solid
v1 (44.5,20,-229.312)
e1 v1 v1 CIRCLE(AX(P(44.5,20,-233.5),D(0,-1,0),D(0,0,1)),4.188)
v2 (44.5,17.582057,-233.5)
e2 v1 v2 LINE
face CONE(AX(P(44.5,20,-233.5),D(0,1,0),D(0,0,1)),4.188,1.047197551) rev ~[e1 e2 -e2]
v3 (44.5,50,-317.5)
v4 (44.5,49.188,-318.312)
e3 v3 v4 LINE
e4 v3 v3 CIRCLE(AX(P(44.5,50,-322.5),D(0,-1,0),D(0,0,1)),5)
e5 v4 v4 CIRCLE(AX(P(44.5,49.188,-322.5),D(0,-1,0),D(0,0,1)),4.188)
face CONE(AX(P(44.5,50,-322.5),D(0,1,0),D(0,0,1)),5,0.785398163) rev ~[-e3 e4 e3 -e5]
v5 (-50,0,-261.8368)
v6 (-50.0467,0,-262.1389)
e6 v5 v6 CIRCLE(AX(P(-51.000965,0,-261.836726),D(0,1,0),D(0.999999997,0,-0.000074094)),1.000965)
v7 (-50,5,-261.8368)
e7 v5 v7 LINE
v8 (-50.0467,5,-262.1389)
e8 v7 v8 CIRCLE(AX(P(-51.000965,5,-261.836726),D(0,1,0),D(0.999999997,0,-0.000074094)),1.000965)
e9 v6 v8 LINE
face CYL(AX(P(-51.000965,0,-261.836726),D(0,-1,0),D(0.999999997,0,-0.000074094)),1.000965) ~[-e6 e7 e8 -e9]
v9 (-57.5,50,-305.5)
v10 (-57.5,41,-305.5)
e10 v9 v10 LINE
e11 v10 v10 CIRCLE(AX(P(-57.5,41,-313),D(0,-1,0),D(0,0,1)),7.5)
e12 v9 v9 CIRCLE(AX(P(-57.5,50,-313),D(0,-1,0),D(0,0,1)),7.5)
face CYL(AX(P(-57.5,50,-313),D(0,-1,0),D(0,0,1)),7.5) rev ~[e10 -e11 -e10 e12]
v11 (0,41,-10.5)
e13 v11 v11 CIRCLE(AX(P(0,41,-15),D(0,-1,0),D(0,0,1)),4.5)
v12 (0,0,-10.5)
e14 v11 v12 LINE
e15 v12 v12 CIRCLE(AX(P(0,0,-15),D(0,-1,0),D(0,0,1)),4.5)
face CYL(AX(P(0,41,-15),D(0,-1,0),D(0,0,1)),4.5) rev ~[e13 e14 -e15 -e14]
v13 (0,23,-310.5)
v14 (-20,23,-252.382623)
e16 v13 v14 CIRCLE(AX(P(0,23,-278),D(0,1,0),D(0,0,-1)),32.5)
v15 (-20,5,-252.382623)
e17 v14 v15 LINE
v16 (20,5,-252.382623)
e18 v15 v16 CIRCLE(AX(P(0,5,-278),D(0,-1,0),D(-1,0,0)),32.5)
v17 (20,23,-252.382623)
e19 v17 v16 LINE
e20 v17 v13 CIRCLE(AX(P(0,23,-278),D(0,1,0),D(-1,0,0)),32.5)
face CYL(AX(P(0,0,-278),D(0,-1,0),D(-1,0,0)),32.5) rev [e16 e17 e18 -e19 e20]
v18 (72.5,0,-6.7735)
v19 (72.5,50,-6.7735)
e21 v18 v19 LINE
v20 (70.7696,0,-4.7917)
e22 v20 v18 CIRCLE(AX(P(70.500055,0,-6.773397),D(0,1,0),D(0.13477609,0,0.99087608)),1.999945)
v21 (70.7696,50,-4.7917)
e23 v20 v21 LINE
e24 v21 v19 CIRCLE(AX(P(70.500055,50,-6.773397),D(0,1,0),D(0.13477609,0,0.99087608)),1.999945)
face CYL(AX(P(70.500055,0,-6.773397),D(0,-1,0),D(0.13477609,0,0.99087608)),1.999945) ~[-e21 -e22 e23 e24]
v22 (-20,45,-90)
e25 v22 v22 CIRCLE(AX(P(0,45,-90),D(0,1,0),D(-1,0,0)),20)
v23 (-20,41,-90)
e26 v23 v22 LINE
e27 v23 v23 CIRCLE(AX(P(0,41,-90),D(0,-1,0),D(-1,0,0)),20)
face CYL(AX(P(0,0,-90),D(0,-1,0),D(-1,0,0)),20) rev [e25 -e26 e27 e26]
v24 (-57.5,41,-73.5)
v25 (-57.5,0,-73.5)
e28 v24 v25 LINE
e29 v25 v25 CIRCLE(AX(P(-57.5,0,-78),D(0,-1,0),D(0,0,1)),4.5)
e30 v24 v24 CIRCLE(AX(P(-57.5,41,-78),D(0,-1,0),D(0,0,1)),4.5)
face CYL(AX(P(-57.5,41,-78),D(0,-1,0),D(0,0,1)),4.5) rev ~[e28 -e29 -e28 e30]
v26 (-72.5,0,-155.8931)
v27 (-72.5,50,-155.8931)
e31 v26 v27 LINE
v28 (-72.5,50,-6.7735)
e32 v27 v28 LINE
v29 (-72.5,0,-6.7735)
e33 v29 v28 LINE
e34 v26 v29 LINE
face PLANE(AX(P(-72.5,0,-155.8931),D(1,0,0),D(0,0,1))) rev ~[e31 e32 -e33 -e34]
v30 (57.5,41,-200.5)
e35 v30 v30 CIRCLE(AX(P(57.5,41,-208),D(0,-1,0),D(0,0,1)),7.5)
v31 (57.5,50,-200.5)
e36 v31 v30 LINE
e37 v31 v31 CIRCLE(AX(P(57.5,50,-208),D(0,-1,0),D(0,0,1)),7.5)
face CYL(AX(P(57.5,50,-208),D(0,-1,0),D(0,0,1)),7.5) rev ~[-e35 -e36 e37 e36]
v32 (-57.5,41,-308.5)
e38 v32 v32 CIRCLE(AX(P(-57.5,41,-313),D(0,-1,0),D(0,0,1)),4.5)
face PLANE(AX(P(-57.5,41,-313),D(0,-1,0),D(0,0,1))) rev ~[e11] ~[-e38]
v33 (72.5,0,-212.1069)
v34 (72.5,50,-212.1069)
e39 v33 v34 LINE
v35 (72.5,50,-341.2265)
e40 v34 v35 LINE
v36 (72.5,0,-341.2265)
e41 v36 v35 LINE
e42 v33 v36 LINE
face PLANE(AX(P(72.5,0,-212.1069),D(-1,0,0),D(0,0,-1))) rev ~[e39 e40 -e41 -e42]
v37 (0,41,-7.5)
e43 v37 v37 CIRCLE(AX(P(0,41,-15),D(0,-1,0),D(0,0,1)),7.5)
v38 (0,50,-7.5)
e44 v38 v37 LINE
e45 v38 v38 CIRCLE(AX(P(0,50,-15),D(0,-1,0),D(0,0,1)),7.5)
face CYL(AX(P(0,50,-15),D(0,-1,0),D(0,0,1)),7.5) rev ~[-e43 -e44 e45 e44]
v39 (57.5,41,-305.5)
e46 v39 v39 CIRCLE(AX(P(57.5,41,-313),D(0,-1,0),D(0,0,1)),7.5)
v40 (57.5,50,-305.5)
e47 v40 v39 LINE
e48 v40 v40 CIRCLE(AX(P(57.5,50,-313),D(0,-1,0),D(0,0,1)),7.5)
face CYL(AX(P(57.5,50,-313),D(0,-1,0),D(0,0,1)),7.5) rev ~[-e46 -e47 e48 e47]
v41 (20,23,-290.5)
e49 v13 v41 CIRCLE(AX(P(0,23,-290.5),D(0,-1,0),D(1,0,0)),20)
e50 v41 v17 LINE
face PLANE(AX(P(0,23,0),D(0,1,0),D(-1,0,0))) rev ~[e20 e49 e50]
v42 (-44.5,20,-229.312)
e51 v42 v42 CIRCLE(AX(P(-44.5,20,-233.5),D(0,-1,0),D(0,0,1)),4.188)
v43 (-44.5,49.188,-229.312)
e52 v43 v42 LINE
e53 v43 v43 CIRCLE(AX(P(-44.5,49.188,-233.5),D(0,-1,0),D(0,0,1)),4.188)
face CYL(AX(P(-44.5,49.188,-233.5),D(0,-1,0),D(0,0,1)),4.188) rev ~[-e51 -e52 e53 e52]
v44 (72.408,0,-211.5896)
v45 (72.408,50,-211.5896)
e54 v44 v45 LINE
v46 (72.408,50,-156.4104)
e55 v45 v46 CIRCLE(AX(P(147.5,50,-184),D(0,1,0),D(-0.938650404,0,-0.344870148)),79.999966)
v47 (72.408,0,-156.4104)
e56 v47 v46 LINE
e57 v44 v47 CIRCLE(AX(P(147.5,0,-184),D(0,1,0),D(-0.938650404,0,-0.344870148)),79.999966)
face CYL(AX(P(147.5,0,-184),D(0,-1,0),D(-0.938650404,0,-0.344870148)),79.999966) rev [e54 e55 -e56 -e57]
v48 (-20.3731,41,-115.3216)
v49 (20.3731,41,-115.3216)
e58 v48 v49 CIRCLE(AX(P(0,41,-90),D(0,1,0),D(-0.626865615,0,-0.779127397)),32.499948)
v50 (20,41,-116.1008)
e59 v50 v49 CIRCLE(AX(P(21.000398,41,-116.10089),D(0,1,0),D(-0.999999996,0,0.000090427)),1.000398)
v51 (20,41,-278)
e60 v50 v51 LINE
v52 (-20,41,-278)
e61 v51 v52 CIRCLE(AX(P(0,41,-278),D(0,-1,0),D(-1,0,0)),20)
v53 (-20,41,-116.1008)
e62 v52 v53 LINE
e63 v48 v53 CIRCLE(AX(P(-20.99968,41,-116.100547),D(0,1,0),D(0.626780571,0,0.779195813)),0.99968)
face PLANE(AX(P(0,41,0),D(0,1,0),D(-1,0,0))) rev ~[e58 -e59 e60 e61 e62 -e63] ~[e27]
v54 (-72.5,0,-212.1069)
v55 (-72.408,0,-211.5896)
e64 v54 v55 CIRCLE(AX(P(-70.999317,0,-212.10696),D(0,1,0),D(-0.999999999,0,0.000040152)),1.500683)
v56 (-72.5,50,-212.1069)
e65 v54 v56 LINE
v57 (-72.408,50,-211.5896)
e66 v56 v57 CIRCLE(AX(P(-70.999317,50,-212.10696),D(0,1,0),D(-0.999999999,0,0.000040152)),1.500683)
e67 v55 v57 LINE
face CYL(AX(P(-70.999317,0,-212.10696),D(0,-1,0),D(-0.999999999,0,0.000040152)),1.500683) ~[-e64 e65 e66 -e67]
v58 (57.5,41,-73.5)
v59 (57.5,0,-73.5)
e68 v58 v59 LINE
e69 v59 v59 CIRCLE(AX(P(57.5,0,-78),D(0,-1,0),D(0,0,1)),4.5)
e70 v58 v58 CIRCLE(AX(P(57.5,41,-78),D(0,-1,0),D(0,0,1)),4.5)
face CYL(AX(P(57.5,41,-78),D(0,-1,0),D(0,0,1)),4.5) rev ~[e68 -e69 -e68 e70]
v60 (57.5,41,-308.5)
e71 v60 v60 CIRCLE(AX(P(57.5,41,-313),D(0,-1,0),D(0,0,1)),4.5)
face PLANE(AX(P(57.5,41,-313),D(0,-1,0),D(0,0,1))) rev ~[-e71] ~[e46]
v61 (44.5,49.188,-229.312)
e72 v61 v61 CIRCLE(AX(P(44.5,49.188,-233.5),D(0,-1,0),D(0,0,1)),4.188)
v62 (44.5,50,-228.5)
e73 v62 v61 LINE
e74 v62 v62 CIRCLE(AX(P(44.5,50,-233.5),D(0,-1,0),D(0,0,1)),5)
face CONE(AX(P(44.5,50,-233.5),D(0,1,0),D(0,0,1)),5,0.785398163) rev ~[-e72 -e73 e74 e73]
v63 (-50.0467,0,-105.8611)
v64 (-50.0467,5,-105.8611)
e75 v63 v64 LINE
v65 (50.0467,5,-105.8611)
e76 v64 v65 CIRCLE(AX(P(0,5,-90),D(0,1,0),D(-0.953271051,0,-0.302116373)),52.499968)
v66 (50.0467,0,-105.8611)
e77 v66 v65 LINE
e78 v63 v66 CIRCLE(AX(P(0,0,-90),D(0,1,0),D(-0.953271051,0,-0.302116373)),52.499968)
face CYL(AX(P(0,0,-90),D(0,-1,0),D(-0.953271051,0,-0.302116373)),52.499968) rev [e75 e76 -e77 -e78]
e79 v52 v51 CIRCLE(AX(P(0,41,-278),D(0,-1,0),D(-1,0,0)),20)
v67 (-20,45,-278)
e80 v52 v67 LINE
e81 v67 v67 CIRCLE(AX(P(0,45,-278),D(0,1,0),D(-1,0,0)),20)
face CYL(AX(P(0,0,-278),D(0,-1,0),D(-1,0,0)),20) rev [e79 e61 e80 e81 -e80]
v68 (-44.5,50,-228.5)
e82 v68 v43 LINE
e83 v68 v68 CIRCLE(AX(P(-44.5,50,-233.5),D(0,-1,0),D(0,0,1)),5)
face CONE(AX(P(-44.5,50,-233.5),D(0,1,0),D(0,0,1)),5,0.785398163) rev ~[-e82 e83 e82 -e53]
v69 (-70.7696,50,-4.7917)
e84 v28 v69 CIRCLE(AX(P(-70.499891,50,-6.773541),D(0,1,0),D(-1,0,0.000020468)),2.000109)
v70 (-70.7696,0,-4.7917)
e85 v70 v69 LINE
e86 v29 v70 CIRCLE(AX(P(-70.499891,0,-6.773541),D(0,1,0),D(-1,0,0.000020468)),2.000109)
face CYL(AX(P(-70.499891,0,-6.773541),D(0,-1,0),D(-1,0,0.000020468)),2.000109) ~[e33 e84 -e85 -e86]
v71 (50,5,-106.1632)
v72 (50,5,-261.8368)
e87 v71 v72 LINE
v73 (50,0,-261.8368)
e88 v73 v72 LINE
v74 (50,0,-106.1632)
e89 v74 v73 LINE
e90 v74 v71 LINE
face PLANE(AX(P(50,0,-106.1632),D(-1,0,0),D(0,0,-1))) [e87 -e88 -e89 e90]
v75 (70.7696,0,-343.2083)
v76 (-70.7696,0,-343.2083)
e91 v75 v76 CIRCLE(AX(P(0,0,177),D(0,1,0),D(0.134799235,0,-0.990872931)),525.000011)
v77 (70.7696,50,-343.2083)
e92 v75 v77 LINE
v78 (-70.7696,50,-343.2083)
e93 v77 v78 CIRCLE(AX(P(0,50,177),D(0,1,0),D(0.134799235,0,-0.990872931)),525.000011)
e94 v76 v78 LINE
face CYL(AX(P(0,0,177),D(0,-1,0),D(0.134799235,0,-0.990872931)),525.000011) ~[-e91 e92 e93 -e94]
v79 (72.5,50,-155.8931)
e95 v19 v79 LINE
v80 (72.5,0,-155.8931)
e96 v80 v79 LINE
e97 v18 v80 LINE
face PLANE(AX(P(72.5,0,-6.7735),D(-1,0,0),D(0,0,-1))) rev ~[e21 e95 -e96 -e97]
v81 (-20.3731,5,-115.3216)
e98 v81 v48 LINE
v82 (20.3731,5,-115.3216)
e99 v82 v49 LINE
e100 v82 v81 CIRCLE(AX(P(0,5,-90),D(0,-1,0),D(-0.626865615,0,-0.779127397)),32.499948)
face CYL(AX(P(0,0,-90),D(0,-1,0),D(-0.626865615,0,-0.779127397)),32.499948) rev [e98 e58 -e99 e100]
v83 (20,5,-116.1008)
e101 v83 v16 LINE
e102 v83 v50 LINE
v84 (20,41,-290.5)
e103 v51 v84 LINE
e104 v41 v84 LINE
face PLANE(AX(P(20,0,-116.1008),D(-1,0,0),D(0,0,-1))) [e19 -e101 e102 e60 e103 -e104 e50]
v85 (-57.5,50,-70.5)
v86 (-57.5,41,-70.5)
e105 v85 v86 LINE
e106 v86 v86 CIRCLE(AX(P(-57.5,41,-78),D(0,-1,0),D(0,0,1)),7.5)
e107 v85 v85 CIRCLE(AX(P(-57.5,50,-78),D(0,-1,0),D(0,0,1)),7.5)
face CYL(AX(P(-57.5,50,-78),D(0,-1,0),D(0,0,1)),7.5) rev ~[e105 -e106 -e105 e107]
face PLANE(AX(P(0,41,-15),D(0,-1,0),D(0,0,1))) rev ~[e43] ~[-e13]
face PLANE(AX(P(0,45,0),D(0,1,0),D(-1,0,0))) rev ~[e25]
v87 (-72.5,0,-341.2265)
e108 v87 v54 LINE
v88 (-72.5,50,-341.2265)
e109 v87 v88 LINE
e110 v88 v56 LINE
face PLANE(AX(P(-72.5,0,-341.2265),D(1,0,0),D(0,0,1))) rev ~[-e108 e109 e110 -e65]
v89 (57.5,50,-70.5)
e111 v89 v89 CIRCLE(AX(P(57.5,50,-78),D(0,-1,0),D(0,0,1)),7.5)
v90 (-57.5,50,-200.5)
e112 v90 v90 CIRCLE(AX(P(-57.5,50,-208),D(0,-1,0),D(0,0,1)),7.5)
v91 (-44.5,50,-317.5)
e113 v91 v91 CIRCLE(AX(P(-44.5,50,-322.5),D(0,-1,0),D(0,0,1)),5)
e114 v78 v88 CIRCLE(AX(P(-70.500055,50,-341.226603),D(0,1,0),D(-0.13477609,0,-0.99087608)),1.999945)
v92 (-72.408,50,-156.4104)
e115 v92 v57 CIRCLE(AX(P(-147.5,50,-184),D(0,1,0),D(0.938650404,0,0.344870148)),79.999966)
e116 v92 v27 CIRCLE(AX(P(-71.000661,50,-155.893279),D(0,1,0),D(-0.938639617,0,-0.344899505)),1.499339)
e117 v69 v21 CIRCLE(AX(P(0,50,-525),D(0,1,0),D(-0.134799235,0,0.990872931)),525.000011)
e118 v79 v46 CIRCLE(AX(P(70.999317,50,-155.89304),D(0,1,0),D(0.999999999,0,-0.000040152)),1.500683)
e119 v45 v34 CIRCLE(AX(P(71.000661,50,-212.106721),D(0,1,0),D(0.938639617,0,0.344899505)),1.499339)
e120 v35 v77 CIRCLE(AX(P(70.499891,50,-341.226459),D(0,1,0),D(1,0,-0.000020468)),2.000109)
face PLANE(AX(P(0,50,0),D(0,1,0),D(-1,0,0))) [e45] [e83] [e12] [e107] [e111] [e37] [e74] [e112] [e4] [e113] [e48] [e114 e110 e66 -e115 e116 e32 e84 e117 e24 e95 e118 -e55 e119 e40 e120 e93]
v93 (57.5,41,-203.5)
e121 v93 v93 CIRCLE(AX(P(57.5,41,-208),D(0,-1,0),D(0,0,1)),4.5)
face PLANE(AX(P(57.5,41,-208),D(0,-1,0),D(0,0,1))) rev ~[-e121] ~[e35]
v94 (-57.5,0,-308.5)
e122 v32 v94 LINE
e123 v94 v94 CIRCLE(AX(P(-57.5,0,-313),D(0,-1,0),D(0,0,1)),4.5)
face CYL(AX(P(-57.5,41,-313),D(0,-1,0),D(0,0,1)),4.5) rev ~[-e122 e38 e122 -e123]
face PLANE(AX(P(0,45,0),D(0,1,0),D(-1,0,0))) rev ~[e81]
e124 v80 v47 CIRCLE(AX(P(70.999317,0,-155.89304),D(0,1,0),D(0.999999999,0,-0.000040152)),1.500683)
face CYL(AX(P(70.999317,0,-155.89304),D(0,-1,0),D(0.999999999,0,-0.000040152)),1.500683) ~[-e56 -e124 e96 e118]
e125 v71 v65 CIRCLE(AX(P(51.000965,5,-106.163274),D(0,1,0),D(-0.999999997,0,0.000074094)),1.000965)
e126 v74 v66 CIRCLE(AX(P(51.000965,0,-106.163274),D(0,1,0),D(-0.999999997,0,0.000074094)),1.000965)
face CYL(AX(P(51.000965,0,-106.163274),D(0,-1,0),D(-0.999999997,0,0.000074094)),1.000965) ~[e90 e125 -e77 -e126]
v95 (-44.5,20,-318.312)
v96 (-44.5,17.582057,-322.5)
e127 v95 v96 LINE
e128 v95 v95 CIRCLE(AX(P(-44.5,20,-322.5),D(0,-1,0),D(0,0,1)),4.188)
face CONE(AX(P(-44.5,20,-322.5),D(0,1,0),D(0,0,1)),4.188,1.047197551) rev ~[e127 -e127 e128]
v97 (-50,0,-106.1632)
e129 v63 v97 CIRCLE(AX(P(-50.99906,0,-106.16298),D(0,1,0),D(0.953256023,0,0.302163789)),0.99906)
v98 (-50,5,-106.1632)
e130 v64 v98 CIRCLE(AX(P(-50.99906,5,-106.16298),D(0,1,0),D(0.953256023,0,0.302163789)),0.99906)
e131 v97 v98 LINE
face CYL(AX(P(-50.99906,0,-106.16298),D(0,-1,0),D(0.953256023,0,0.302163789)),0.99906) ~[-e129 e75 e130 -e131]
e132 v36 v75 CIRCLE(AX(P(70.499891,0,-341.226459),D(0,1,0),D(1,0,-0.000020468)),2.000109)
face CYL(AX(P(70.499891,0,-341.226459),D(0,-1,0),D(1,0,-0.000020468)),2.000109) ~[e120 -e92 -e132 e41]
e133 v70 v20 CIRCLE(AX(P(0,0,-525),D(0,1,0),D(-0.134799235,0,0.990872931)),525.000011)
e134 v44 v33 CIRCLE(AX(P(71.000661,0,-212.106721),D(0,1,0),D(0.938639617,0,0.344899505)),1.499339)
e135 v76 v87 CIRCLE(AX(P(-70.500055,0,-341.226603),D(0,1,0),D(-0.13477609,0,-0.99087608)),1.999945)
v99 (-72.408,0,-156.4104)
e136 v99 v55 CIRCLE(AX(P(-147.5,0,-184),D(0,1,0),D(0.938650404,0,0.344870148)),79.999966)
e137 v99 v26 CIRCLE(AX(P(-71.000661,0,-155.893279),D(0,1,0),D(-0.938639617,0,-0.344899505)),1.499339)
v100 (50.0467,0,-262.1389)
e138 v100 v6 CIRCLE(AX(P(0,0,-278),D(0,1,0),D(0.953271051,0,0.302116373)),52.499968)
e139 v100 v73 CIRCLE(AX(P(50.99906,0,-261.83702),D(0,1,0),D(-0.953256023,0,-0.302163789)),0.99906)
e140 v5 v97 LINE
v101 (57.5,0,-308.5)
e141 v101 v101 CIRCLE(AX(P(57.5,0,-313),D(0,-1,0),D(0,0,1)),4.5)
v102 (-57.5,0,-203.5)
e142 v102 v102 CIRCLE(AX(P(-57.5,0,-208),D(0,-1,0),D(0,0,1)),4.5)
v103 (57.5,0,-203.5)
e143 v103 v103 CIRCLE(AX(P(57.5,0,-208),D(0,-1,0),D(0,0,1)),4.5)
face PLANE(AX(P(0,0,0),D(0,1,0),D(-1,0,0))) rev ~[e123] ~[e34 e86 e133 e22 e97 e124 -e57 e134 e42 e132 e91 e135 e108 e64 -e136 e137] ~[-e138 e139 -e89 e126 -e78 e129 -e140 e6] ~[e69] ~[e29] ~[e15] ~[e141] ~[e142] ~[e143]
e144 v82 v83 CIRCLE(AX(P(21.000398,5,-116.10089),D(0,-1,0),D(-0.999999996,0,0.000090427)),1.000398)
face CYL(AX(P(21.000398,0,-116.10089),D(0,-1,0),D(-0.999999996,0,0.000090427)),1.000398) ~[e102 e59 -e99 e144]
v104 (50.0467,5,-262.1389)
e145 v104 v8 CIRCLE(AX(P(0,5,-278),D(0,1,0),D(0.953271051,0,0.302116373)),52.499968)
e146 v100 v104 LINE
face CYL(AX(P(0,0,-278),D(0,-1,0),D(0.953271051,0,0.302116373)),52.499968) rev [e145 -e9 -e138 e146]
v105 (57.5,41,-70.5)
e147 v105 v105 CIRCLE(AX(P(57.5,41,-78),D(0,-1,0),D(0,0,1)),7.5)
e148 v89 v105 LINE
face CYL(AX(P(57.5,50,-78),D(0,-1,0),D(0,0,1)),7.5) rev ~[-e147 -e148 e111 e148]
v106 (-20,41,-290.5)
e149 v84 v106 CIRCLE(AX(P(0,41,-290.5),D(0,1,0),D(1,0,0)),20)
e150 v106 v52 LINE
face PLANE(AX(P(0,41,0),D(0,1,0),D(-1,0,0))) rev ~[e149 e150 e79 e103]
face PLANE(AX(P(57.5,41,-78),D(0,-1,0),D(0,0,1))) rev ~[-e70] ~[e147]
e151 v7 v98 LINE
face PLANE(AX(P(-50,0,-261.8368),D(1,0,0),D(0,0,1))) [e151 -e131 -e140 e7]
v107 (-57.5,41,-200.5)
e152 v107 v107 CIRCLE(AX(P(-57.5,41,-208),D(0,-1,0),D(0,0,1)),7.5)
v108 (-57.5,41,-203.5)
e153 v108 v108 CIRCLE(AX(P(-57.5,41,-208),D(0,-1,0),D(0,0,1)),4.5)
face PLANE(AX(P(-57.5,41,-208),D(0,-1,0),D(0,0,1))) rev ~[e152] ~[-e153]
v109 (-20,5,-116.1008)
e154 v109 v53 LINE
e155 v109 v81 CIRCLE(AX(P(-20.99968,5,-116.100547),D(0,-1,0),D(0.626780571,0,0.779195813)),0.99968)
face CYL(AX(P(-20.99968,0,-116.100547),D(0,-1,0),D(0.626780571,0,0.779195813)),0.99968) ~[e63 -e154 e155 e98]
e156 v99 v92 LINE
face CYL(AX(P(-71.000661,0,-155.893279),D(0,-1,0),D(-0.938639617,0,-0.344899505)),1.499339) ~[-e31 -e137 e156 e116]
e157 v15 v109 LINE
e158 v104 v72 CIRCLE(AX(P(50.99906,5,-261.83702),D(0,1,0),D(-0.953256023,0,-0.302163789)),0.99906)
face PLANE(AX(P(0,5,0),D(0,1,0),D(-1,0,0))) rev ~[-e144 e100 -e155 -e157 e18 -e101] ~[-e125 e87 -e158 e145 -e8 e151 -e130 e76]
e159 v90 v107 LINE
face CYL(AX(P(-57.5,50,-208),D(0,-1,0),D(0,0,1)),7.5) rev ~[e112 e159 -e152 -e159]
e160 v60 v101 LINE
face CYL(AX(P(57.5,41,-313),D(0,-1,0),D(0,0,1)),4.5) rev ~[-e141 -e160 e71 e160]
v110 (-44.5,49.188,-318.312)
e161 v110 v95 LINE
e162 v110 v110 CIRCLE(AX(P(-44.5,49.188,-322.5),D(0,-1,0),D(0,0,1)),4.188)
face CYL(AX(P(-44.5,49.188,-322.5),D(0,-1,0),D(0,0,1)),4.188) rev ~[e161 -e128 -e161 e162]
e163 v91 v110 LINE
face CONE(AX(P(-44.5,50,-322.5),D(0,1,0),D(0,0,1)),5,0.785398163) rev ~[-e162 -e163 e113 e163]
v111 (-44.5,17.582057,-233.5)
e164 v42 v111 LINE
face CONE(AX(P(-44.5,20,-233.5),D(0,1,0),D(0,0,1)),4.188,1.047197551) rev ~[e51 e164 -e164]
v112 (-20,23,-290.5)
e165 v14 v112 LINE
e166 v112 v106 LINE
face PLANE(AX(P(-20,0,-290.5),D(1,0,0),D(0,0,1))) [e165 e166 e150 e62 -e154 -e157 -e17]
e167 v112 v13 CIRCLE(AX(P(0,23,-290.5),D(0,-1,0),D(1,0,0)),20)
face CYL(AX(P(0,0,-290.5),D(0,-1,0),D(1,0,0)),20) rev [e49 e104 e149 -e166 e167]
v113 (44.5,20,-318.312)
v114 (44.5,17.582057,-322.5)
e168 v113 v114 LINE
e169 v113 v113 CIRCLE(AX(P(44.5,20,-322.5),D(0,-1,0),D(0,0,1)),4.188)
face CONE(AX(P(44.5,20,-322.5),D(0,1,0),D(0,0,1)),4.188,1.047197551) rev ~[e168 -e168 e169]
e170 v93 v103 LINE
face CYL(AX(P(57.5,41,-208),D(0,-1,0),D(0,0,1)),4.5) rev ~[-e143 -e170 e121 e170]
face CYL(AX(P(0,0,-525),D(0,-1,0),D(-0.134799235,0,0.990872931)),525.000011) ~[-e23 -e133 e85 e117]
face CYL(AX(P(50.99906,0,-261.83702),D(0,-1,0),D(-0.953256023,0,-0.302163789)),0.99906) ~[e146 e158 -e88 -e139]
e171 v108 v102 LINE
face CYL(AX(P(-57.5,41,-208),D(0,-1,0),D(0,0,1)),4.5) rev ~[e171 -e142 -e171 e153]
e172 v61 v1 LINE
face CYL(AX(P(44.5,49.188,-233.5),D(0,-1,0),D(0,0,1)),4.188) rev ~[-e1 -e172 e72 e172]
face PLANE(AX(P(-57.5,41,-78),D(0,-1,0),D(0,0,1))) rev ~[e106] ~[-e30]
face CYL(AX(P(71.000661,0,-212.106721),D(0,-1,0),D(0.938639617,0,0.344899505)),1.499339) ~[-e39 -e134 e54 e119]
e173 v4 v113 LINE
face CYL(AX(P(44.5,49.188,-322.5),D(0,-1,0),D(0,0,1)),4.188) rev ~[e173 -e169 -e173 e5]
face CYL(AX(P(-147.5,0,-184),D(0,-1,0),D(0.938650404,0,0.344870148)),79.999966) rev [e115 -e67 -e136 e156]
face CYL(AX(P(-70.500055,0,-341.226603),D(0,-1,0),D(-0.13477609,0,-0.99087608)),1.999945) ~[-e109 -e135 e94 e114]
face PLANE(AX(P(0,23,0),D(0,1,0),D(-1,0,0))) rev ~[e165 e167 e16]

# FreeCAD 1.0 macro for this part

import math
import FreeCAD as App
import Part
import Sketcher

V = App.Vector
Q = App.Units.Quantity

doc = App.newDocument("Part")
body = doc.addObject("PartDesign::Body", "Body")

sketch1 = body.newObject("Sketcher::SketchObject", "Sketch")
sketch1.AttachmentSupport = (doc.getObject("XZ_Plane"), [""])
sketch1.MapMode = "FlatFace"
sketch1.addGeometry([
    Part.ArcOfCircle(Part.Circle(V(-71, -155.8931, 0), V(0, 0, 1), 1.500021), math.radians(180), math.radians(200.173361)),
    Part.LineSegment(V(-72.5, -155.8931, 0), V(-72.5, -6.7735, 0)),
    Part.ArcOfCircle(Part.Circle(V(-70.5, -6.7735, 0), V(0, 0, 1), 2), math.radians(97.746845), math.radians(180)),
    Part.ArcOfCircle(Part.Circle(V(0, -525, 0), V(0, 0, 1), 525.000011), math.radians(82.252989), math.radians(97.747011)),
    Part.ArcOfCircle(Part.Circle(V(70.5, -6.7735, 0), V(0, 0, 1), 2.000054), math.radians(0), math.radians(82.253155)),
    Part.LineSegment(V(72.5, -6.7735, 0), V(72.5, -155.8931, 0)),
    Part.ArcOfCircle(Part.Circle(V(71, -155.8931, 0), V(0, 0, 1), 1.5), math.radians(-20.173361), math.radians(0)),
    Part.ArcOfCircle(Part.Circle(V(147.5, -184, 0), V(0, 0, 1), 79.999966), math.radians(159.826131), math.radians(200.173869)),
    Part.ArcOfCircle(Part.Circle(V(71, -212.1069, 0), V(0, 0, 1), 1.500021), math.radians(0), math.radians(20.173361)),
    Part.LineSegment(V(72.5, -212.1069, 0), V(72.5, -341.2265, 0)),
    Part.ArcOfCircle(Part.Circle(V(70.5, -341.2265, 0), V(0, 0, 1), 2), math.radians(-82.253155), math.radians(0)),
    Part.ArcOfCircle(Part.Circle(V(0, 177, 0), V(0, 0, 1), 525.000011), math.radians(-97.747011), math.radians(-82.252989)),
    Part.ArcOfCircle(Part.Circle(V(-70.5, -341.2265, 0), V(0, 0, 1), 2.000054), math.radians(180), math.radians(262.253155)),
    Part.LineSegment(V(-72.5, -341.2265, 0), V(-72.5, -212.1069, 0)),
    Part.ArcOfCircle(Part.Circle(V(-71, -212.1069, 0), V(0, 0, 1), 1.5), math.radians(159.826639), math.radians(180)),
    Part.ArcOfCircle(Part.Circle(V(-147.5, -184, 0), V(0, 0, 1), 79.999966), math.radians(-20.173869), math.radians(20.173869)),
], False)
sketch1.addConstraint([
    Sketcher.Constraint("Tangent", 0, 1, 1, 1),
    Sketcher.Constraint("Tangent", 1, 2, 2, 2),
    Sketcher.Constraint("Tangent", 2, 1, 3, 2),
    Sketcher.Constraint("Tangent", 3, 1, 4, 2),
    Sketcher.Constraint("Tangent", 4, 1, 5, 1),
    Sketcher.Constraint("Tangent", 5, 2, 6, 2),
    Sketcher.Constraint("Tangent", 6, 1, 7, 1),
    Sketcher.Constraint("Tangent", 7, 2, 8, 2),
    Sketcher.Constraint("Tangent", 8, 1, 9, 1),
    Sketcher.Constraint("Tangent", 9, 2, 10, 2),
    Sketcher.Constraint("Tangent", 10, 1, 11, 2),
    Sketcher.Constraint("Tangent", 11, 1, 12, 2),
    Sketcher.Constraint("Tangent", 12, 1, 13, 1),
    Sketcher.Constraint("Tangent", 13, 2, 14, 2),
    Sketcher.Constraint("Tangent", 14, 1, 15, 1),
    Sketcher.Constraint("Tangent", 15, 2, 0, 2),
    Sketcher.Constraint("Vertical", 1),
    Sketcher.Constraint("Vertical", 5),
    Sketcher.Constraint("Vertical", 9),
    Sketcher.Constraint("Vertical", 13),
    Sketcher.Constraint("Equal", 2, 4),
    Sketcher.Constraint("Equal", 0, 6),
    Sketcher.Constraint("Equal", 6, 8),
    Sketcher.Constraint("Equal", 4, 10),
    Sketcher.Constraint("Equal", 3, 11),
    Sketcher.Constraint("Equal", 10, 12),
    Sketcher.Constraint("Equal", 8, 14),
    Sketcher.Constraint("Equal", 7, 15),
    Sketcher.Constraint("Symmetric", 2, 3, 4, 3, -2),
    Sketcher.Constraint("Symmetric", 10, 3, 12, 3, -2),
    Sketcher.Constraint("Symmetric", 7, 3, 15, 3, -2),
    Sketcher.Constraint("Vertical", 6, 3, 8, 3),
    Sketcher.Constraint("Radius", 2, Q("2 mm")),
    Sketcher.Constraint("Radius", 3, Q("525 mm")),
    Sketcher.Constraint("Radius", 7, Q("80 mm")),
    Sketcher.Constraint("Radius", 0, Q("1.5 mm")),
    Sketcher.Constraint("DistanceX", 0, 3, -1, 1, Q("71 mm")),
    Sketcher.Constraint("DistanceY", 3, 3, -1, 1, Q("525 mm")),
    Sketcher.Constraint("DistanceY", 7, 3, -1, 1, Q("184 mm")),
    Sketcher.Constraint("DistanceY", -1, 1, 11, 3, Q("177 mm")),
    Sketcher.Constraint("DistanceX", 4, 3, 7, 3, Q("77 mm")),
])
pad1 = body.newObject("PartDesign::Pad", "Pad")
pad1.Profile = sketch1
pad1.Length = 50
pad1.Reversed = True

sketch2 = body.newObject("Sketcher::SketchObject", "Sketch001")
sketch2.AttachmentSupport = (doc.getObject("XZ_Plane"), [""])
sketch2.MapMode = "FlatFace"
sketch2.addGeometry([
    Part.ArcOfCircle(Part.Circle(V(-21, -116.1008, 0), V(0, 0, 1), 1.000078), math.radians(0), math.radians(51.181823)),
    Part.ArcOfCircle(Part.Circle(V(0, -90, 0), V(0, 0, 1), 32.499948), math.radians(-51.18075), math.radians(231.18075)),
    Part.ArcOfCircle(Part.Circle(V(21, -116.1008, 0), V(0, 0, 1), 1), math.radians(128.818177), math.radians(180)),
    Part.LineSegment(V(20, -116.1008, 0), V(20, -290.5, 0)),
    Part.ArcOfCircle(Part.Circle(V(0, -290.5, 0), V(0, 0, 1), 20), math.radians(180), math.radians(360)),
    Part.LineSegment(V(-20, -290.5, 0), V(-20, -116.1008, 0)),
], False)
sketch2.addConstraint([
    Sketcher.Constraint("Tangent", 0, 2, 1, 2),
    Sketcher.Constraint("Tangent", 1, 1, 2, 1),
    Sketcher.Constraint("Tangent", 2, 2, 3, 1),
    Sketcher.Constraint("Tangent", 3, 2, 4, 2),
    Sketcher.Constraint("Tangent", 4, 1, 5, 1),
    Sketcher.Constraint("Tangent", 5, 2, 0, 1),
    Sketcher.Constraint("Vertical", 3),
    Sketcher.Constraint("Vertical", 5),
    Sketcher.Constraint("Equal", 0, 2),
    Sketcher.Constraint("Symmetric", 0, 3, 2, 3, -2),
    Sketcher.Constraint("Radius", 0, Q("1 mm")),
    Sketcher.Constraint("Radius", 4, Q("20 mm")),
    Sketcher.Constraint("Radius", 1, Q("32.5 mm")),
    Sketcher.Constraint("DistanceY", 1, 3, -1, 1, Q("90 mm")),
    Sketcher.Constraint("DistanceY", 4, 3, -1, 1, Q("290.5 mm")),
])
pocket1 = body.newObject("PartDesign::Pocket", "Pocket")
pocket1.Profile = sketch2
pocket1.Length = 41

sketch3 = body.newObject("Sketcher::SketchObject", "Sketch002")
sketch3.AttachmentSupport = (doc.getObject("XZ_Plane"), [""])
sketch3.MapMode = "FlatFace"
sketch3.addGeometry(Part.Circle(V(0, -278, 0), V(0, 0, 1), 32.5), False)
sketch3.addConstraint([
    Sketcher.Constraint("PointOnObject", 0, 3, -2),
    Sketcher.Constraint("Diameter", 0, Q("65 mm")),
    Sketcher.Constraint("DistanceY", 0, 3, -1, 1, Q("278 mm")),
])
pocket2 = body.newObject("PartDesign::Pocket", "Pocket001")
pocket2.Profile = sketch3
pocket2.Length = 23

sketch4 = body.newObject("Sketcher::SketchObject", "Sketch003")
sketch4.AttachmentSupport = (doc.getObject("XZ_Plane"), [""])
sketch4.MapMode = "FlatFace"
sketch4.addGeometry(Part.Circle(V(0, -278, 0), V(0, 0, 1), 20), False)
sketch4.addConstraint([
    Sketcher.Constraint("PointOnObject", 0, 3, -2),
    Sketcher.Constraint("Diameter", 0, Q("40 mm")),
    Sketcher.Constraint("DistanceY", 0, 3, -1, 1, Q("278 mm")),
])
pocket3 = body.newObject("PartDesign::Pocket", "Pocket002")
pocket3.Profile = sketch4
pocket3.Length = 45

sketch5 = body.newObject("Sketcher::SketchObject", "Sketch004")
sketch5.AttachmentSupport = (doc.getObject("XZ_Plane"), [""])
sketch5.MapMode = "FlatFace"
sketch5.addGeometry(Part.Circle(V(0, -90, 0), V(0, 0, 1), 20), False)
sketch5.addConstraint([
    Sketcher.Constraint("PointOnObject", 0, 3, -2),
    Sketcher.Constraint("Diameter", 0, Q("40 mm")),
    Sketcher.Constraint("DistanceY", 0, 3, -1, 1, Q("90 mm")),
])
pocket4 = body.newObject("PartDesign::Pocket", "Pocket003")
pocket4.Profile = sketch5
pocket4.Length = 45

sketch6 = body.newObject("Sketcher::SketchObject", "Sketch005")
sketch6.AttachmentSupport = (doc.getObject("XZ_Plane"), [""])
sketch6.MapMode = "FlatFace"
sketch6.addGeometry([
    Part.ArcOfCircle(Part.Circle(V(-51, -106.1632, 0), V(0, 0, 1), 1.000023), math.radians(0), math.radians(17.583366)),
    Part.ArcOfCircle(Part.Circle(V(0, -90, 0), V(0, 0, 1), 52.499968), math.radians(-17.584762), math.radians(197.584762)),
    Part.ArcOfCircle(Part.Circle(V(51, -106.1632, 0), V(0, 0, 1), 1), math.radians(162.416634), math.radians(180)),
    Part.LineSegment(V(50, -106.1632, 0), V(50, -261.8368, 0)),
    Part.ArcOfCircle(Part.Circle(V(51, -261.8368, 0), V(0, 0, 1), 1.000023), math.radians(180), math.radians(197.583366)),
    Part.ArcOfCircle(Part.Circle(V(0, -278, 0), V(0, 0, 1), 52.499968), math.radians(162.415238), math.radians(377.584762)),
    Part.ArcOfCircle(Part.Circle(V(-51, -261.8368, 0), V(0, 0, 1), 1), math.radians(-17.583366), math.radians(0)),
    Part.LineSegment(V(-50, -261.8368, 0), V(-50, -106.1632, 0)),
], False)
sketch6.addConstraint([
    Sketcher.Constraint("Tangent", 0, 2, 1, 2),
    Sketcher.Constraint("Tangent", 1, 1, 2, 1),
    Sketcher.Constraint("Tangent", 2, 2, 3, 1),
    Sketcher.Constraint("Tangent", 3, 2, 4, 1),
    Sketcher.Constraint("Tangent", 4, 2, 5, 2),
    Sketcher.Constraint("Tangent", 5, 1, 6, 1),
    Sketcher.Constraint("Tangent", 6, 2, 7, 1),
    Sketcher.Constraint("Tangent", 7, 2, 0, 1),
    Sketcher.Constraint("Vertical", 3),
    Sketcher.Constraint("Vertical", 7),
    Sketcher.Constraint("Equal", 0, 2),
    Sketcher.Constraint("Equal", 2, 4),
    Sketcher.Constraint("Equal", 1, 5),
    Sketcher.Constraint("Equal", 4, 6),
    Sketcher.Constraint("Symmetric", 0, 3, 2, 3, -2),
    Sketcher.Constraint("PointOnObject", 5, 3, -2),
    Sketcher.Constraint("Radius", 0, Q("1 mm")),
    Sketcher.Constraint("Radius", 1, Q("52.5 mm")),
    Sketcher.Constraint("DistanceX", 0, 3, -1, 1, Q("51 mm")),
    Sketcher.Constraint("DistanceY", 1, 3, -1, 1, Q("90 mm")),
    Sketcher.Constraint("DistanceY", 5, 3, -1, 1, Q("278 mm")),
])
pocket5 = body.newObject("PartDesign::Pocket", "Pocket004")
pocket5.Profile = sketch6
pocket5.Length = 5

sketch7 = body.newObject("Sketcher::SketchObject", "Sketch006")
sketch7.AttachmentSupport = (doc.getObject("XZ_Plane"), [""])
sketch7.MapMode = "FlatFace"
sketch7.AttachmentOffset = App.Placement(V(0, 0, -50), App.Rotation())
sketch7.addGeometry(Part.Circle(V(0, -15, 0), V(0, 0, 1), 4.5), False)
sketch7.addConstraint([
    Sketcher.Constraint("PointOnObject", 0, 3, -2),
    Sketcher.Constraint("Diameter", 0, Q("9 mm")),
    Sketcher.Constraint("DistanceY", 0, 3, -1, 1, Q("15 mm")),
])
doc.recompute()
hole = body.newObject("PartDesign::Hole", "Hole")
hole.Profile = sketch7
hole.ThreadType = "None"
hole.Diameter = 9
hole.DepthType = "Dimension"
hole.Depth = 50
hole.DrillPoint = "Flat"
hole.HoleCutType = "Counterbore"
hole.HoleCutDiameter = 15
hole.HoleCutDepth = 9
hole.Reversed = True

sketch8 = body.newObject("Sketcher::SketchObject", "Sketch007")
sketch8.AttachmentSupport = (doc.getObject("XZ_Plane"), [""])
sketch8.MapMode = "FlatFace"
sketch8.AttachmentOffset = App.Placement(V(0, 0, -50), App.Rotation())
sketch8.addGeometry(Part.Circle(V(57.5, -208, 0), V(0, 0, 1), 4.5), False)
sketch8.addConstraint([
    Sketcher.Constraint("Diameter", 0, Q("9 mm")),
    Sketcher.Constraint("DistanceY", 0, 3, -1, 1, Q("208 mm")),
    Sketcher.Constraint("DistanceX", -1, 1, 0, 3, Q("57.5 mm")),
])
doc.recompute()
hole2 = body.newObject("PartDesign::Hole", "Hole001")
hole2.Profile = sketch8
hole2.ThreadType = "None"
hole2.Diameter = 9
hole2.DepthType = "Dimension"
hole2.Depth = 50
hole2.DrillPoint = "Flat"
hole2.HoleCutType = "Counterbore"
hole2.HoleCutDiameter = 15
hole2.HoleCutDepth = 9
hole2.Reversed = True

sketch9 = body.newObject("Sketcher::SketchObject", "Sketch008")
sketch9.AttachmentSupport = (doc.getObject("XZ_Plane"), [""])
sketch9.MapMode = "FlatFace"
sketch9.AttachmentOffset = App.Placement(V(0, 0, -50), App.Rotation())
sketch9.addGeometry(Part.Circle(V(57.5, -313, 0), V(0, 0, 1), 4.5), False)
sketch9.addConstraint([
    Sketcher.Constraint("Diameter", 0, Q("9 mm")),
    Sketcher.Constraint("DistanceY", 0, 3, -1, 1, Q("313 mm")),
    Sketcher.Constraint("DistanceX", -1, 1, 0, 3, Q("57.5 mm")),
])
doc.recompute()
hole3 = body.newObject("PartDesign::Hole", "Hole002")
hole3.Profile = sketch9
hole3.ThreadType = "None"
hole3.Diameter = 9
hole3.DepthType = "Dimension"
hole3.Depth = 50
hole3.DrillPoint = "Flat"
hole3.HoleCutType = "Counterbore"
hole3.HoleCutDiameter = 15
hole3.HoleCutDepth = 9
hole3.Reversed = True

sketch10 = body.newObject("Sketcher::SketchObject", "Sketch009")
sketch10.AttachmentSupport = (doc.getObject("XZ_Plane"), [""])
sketch10.MapMode = "FlatFace"
sketch10.AttachmentOffset = App.Placement(V(0, 0, -50), App.Rotation())
sketch10.addGeometry(Part.Circle(V(57.5, -78, 0), V(0, 0, 1), 4.5), False)
sketch10.addConstraint([
    Sketcher.Constraint("Diameter", 0, Q("9 mm")),
    Sketcher.Constraint("DistanceY", 0, 3, -1, 1, Q("78 mm")),
    Sketcher.Constraint("DistanceX", -1, 1, 0, 3, Q("57.5 mm")),
])
doc.recompute()
hole4 = body.newObject("PartDesign::Hole", "Hole003")
hole4.Profile = sketch10
hole4.ThreadType = "None"
hole4.Diameter = 9
hole4.DepthType = "Dimension"
hole4.Depth = 50
hole4.DrillPoint = "Flat"
hole4.HoleCutType = "Counterbore"
hole4.HoleCutDiameter = 15
hole4.HoleCutDepth = 9
hole4.Reversed = True

sketch11 = body.newObject("Sketcher::SketchObject", "Sketch010")
sketch11.AttachmentSupport = (doc.getObject("XZ_Plane"), [""])
sketch11.MapMode = "FlatFace"
sketch11.AttachmentOffset = App.Placement(V(0, 0, -50), App.Rotation())
sketch11.addGeometry(Part.Circle(V(-57.5, -208, 0), V(0, 0, 1), 4.5), False)
sketch11.addConstraint([
    Sketcher.Constraint("Diameter", 0, Q("9 mm")),
    Sketcher.Constraint("DistanceY", 0, 3, -1, 1, Q("208 mm")),
    Sketcher.Constraint("DistanceX", 0, 3, -1, 1, Q("57.5 mm")),
])
doc.recompute()
hole5 = body.newObject("PartDesign::Hole", "Hole004")
hole5.Profile = sketch11
hole5.ThreadType = "None"
hole5.Diameter = 9
hole5.DepthType = "Dimension"
hole5.Depth = 50
hole5.DrillPoint = "Flat"
hole5.HoleCutType = "Counterbore"
hole5.HoleCutDiameter = 15
hole5.HoleCutDepth = 9
hole5.Reversed = True

sketch12 = body.newObject("Sketcher::SketchObject", "Sketch011")
sketch12.AttachmentSupport = (doc.getObject("XZ_Plane"), [""])
sketch12.MapMode = "FlatFace"
sketch12.AttachmentOffset = App.Placement(V(0, 0, -50), App.Rotation())
sketch12.addGeometry(Part.Circle(V(-57.5, -313, 0), V(0, 0, 1), 4.5), False)
sketch12.addConstraint([
    Sketcher.Constraint("Diameter", 0, Q("9 mm")),
    Sketcher.Constraint("DistanceY", 0, 3, -1, 1, Q("313 mm")),
    Sketcher.Constraint("DistanceX", 0, 3, -1, 1, Q("57.5 mm")),
])
doc.recompute()
hole6 = body.newObject("PartDesign::Hole", "Hole005")
hole6.Profile = sketch12
hole6.ThreadType = "None"
hole6.Diameter = 9
hole6.DepthType = "Dimension"
hole6.Depth = 50
hole6.DrillPoint = "Flat"
hole6.HoleCutType = "Counterbore"
hole6.HoleCutDiameter = 15
hole6.HoleCutDepth = 9
hole6.Reversed = True

sketch13 = body.newObject("Sketcher::SketchObject", "Sketch012")
sketch13.AttachmentSupport = (doc.getObject("XZ_Plane"), [""])
sketch13.MapMode = "FlatFace"
sketch13.AttachmentOffset = App.Placement(V(0, 0, -50), App.Rotation())
sketch13.addGeometry(Part.Circle(V(-57.5, -78, 0), V(0, 0, 1), 4.5), False)
sketch13.addConstraint([
    Sketcher.Constraint("Diameter", 0, Q("9 mm")),
    Sketcher.Constraint("DistanceY", 0, 3, -1, 1, Q("78 mm")),
    Sketcher.Constraint("DistanceX", 0, 3, -1, 1, Q("57.5 mm")),
])
doc.recompute()
hole7 = body.newObject("PartDesign::Hole", "Hole006")
hole7.Profile = sketch13
hole7.ThreadType = "None"
hole7.Diameter = 9
hole7.DepthType = "Dimension"
hole7.Depth = 50
hole7.DrillPoint = "Flat"
hole7.HoleCutType = "Counterbore"
hole7.HoleCutDiameter = 15
hole7.HoleCutDepth = 9
hole7.Reversed = True

sketch14 = body.newObject("Sketcher::SketchObject", "Sketch013")
sketch14.AttachmentSupport = (doc.getObject("XZ_Plane"), [""])
sketch14.MapMode = "FlatFace"
sketch14.AttachmentOffset = App.Placement(V(0, 0, -50), App.Rotation())
sketch14.addGeometry(Part.Circle(V(44.5, -322.5, 0), V(0, 0, 1), 4.188), False)
sketch14.addConstraint([
    Sketcher.Constraint("Diameter", 0, Q("8.376 mm")),
    Sketcher.Constraint("DistanceX", -1, 1, 0, 3, Q("44.5 mm")),
    Sketcher.Constraint("DistanceY", 0, 3, -1, 1, Q("322.5 mm")),
])
doc.recompute()
hole8 = body.newObject("PartDesign::Hole", "Hole007")
hole8.Profile = sketch14
hole8.ThreadType = "None"
hole8.Diameter = 8.376
hole8.DepthType = "Dimension"
hole8.Depth = 30
hole8.DrillPoint = "Angled"
hole8.DrillPointAngle = 120
hole8.HoleCutType = "Countersink"
hole8.HoleCutDiameter = 10
hole8.HoleCutCountersinkAngle = 90
hole8.Reversed = True

sketch15 = body.newObject("Sketcher::SketchObject", "Sketch014")
sketch15.AttachmentSupport = (doc.getObject("XZ_Plane"), [""])
sketch15.MapMode = "FlatFace"
sketch15.AttachmentOffset = App.Placement(V(0, 0, -50), App.Rotation())
sketch15.addGeometry(Part.Circle(V(-44.5, -322.5, 0), V(0, 0, 1), 4.188), False)
sketch15.addConstraint([
    Sketcher.Constraint("Diameter", 0, Q("8.376 mm")),
    Sketcher.Constraint("DistanceX", 0, 3, -1, 1, Q("44.5 mm")),
    Sketcher.Constraint("DistanceY", 0, 3, -1, 1, Q("322.5 mm")),
])
doc.recompute()
hole9 = body.newObject("PartDesign::Hole", "Hole008")
hole9.Profile = sketch15
hole9.ThreadType = "None"
hole9.Diameter = 8.376
hole9.DepthType = "Dimension"
hole9.Depth = 30
hole9.DrillPoint = "Angled"
hole9.DrillPointAngle = 120
hole9.HoleCutType = "Countersink"
hole9.HoleCutDiameter = 10
hole9.HoleCutCountersinkAngle = 90
hole9.Reversed = True

sketch16 = body.newObject("Sketcher::SketchObject", "Sketch015")
sketch16.AttachmentSupport = (doc.getObject("XZ_Plane"), [""])
sketch16.MapMode = "FlatFace"
sketch16.AttachmentOffset = App.Placement(V(0, 0, -50), App.Rotation())
sketch16.addGeometry(Part.Circle(V(44.5, -233.5, 0), V(0, 0, 1), 4.188), False)
sketch16.addConstraint([
    Sketcher.Constraint("Diameter", 0, Q("8.376 mm")),
    Sketcher.Constraint("DistanceX", -1, 1, 0, 3, Q("44.5 mm")),
    Sketcher.Constraint("DistanceY", 0, 3, -1, 1, Q("233.5 mm")),
])
doc.recompute()
hole10 = body.newObject("PartDesign::Hole", "Hole009")
hole10.Profile = sketch16
hole10.ThreadType = "None"
hole10.Diameter = 8.376
hole10.DepthType = "Dimension"
hole10.Depth = 30
hole10.DrillPoint = "Angled"
hole10.DrillPointAngle = 120
hole10.HoleCutType = "Countersink"
hole10.HoleCutDiameter = 10
hole10.HoleCutCountersinkAngle = 90
hole10.Reversed = True

sketch17 = body.newObject("Sketcher::SketchObject", "Sketch016")
sketch17.AttachmentSupport = (doc.getObject("XZ_Plane"), [""])
sketch17.MapMode = "FlatFace"
sketch17.AttachmentOffset = App.Placement(V(0, 0, -50), App.Rotation())
sketch17.addGeometry(Part.Circle(V(-44.5, -233.5, 0), V(0, 0, 1), 4.188), False)
sketch17.addConstraint([
    Sketcher.Constraint("Diameter", 0, Q("8.376 mm")),
    Sketcher.Constraint("DistanceX", 0, 3, -1, 1, Q("44.5 mm")),
    Sketcher.Constraint("DistanceY", 0, 3, -1, 1, Q("233.5 mm")),
])
doc.recompute()
hole11 = body.newObject("PartDesign::Hole", "Hole010")
hole11.Profile = sketch17
hole11.ThreadType = "None"
hole11.Diameter = 8.376
hole11.DepthType = "Dimension"
hole11.Depth = 30
hole11.DrillPoint = "Angled"
hole11.DrillPointAngle = 120
hole11.HoleCutType = "Countersink"
hole11.HoleCutDiameter = 10
hole11.HoleCutCountersinkAngle = 90
hole11.Reversed = True

doc.recompute()
